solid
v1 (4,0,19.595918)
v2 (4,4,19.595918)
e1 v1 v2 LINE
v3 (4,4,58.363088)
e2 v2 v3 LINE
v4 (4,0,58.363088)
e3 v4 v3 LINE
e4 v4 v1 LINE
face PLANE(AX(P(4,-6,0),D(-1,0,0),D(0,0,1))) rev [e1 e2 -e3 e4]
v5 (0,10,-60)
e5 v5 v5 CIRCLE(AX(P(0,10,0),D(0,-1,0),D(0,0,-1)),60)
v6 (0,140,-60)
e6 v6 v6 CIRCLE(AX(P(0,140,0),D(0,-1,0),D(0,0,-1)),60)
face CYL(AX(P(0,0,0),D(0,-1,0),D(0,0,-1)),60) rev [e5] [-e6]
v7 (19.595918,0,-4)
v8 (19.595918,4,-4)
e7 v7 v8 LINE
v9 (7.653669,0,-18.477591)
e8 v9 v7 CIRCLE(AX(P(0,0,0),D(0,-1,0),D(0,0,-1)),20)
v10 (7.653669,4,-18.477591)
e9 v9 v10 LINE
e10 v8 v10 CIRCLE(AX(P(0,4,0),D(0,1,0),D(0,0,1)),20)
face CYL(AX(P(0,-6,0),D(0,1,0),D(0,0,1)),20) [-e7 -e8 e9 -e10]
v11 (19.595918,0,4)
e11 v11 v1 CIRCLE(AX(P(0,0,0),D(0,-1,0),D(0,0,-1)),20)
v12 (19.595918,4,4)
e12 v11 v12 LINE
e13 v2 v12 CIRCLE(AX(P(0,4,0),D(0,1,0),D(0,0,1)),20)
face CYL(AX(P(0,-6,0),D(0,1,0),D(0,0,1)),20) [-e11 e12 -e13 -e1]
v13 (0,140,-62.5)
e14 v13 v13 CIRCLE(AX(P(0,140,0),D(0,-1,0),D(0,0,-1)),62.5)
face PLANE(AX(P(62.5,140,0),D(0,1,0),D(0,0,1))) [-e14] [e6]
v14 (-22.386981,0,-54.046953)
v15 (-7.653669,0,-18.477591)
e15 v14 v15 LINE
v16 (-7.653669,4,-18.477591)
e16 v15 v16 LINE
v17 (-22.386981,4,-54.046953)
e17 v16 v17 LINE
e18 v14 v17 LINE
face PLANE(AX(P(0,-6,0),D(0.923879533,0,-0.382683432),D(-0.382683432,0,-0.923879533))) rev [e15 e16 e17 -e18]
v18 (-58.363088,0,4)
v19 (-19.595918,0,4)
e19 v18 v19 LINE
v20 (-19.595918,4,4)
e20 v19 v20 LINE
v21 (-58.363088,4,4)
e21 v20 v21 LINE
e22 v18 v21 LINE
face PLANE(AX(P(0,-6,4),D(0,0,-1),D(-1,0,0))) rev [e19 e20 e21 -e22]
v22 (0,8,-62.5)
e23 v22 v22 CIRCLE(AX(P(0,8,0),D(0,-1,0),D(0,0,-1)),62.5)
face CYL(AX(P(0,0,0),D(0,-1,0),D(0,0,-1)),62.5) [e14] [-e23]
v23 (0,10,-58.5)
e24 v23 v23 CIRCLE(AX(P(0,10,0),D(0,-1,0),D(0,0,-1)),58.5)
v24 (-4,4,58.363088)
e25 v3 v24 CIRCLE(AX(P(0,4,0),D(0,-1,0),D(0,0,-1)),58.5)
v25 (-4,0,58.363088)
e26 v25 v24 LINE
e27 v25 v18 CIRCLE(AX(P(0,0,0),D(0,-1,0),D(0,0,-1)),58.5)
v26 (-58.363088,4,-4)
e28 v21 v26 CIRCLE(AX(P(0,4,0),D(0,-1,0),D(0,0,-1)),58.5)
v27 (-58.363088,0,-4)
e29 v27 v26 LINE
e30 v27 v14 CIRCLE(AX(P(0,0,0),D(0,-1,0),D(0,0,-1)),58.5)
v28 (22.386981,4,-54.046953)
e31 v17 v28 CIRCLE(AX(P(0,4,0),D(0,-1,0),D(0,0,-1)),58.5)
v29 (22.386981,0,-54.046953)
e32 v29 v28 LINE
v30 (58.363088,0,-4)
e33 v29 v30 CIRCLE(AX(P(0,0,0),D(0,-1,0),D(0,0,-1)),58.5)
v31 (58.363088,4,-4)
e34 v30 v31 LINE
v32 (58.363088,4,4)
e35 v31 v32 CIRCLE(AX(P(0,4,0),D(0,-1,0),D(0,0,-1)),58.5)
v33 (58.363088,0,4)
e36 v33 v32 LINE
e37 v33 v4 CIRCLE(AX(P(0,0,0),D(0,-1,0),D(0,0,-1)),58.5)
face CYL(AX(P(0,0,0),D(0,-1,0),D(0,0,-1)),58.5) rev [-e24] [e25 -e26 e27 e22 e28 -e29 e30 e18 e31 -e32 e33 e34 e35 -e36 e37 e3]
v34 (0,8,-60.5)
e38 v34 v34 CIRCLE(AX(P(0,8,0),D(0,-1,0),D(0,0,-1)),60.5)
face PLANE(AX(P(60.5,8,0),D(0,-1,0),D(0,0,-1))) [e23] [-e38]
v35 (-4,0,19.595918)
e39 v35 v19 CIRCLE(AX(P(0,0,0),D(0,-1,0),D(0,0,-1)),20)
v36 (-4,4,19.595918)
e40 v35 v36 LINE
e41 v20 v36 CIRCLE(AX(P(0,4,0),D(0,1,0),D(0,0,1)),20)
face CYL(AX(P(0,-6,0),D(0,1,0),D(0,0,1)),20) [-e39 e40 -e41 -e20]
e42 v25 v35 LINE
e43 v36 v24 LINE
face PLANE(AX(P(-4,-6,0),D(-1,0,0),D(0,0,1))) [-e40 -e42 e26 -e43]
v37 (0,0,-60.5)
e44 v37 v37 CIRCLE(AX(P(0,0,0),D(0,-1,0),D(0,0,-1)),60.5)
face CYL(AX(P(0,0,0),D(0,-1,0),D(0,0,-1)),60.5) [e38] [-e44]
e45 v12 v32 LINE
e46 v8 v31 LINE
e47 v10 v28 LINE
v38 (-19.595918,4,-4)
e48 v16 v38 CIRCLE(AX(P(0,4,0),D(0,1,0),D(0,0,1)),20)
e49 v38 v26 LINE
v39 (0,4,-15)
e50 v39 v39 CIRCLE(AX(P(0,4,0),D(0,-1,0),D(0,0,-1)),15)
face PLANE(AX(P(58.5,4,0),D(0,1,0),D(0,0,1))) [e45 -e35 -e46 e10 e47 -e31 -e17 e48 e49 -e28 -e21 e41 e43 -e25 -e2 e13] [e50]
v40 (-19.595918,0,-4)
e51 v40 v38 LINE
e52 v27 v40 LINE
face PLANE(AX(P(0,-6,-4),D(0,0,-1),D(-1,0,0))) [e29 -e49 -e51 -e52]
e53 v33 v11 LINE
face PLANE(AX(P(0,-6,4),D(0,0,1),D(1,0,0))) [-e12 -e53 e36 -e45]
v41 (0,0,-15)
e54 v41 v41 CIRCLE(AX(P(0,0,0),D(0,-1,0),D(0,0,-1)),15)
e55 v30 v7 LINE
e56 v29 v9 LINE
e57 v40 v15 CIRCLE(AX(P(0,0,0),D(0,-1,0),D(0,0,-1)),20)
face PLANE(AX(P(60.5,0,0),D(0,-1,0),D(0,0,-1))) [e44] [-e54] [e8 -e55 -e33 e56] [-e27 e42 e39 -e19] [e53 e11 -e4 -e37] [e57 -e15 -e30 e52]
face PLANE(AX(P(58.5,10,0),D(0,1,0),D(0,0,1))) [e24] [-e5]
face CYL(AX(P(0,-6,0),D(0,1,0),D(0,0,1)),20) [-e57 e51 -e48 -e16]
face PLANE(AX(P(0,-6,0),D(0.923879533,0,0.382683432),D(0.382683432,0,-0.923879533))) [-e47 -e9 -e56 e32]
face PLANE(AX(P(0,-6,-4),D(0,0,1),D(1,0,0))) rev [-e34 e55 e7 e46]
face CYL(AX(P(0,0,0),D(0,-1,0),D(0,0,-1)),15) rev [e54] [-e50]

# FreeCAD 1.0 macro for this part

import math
import FreeCAD as App
import Part
import Sketcher

V = App.Vector
Q = App.Units.Quantity

doc = App.newDocument("Part")
body = doc.addObject("PartDesign::Body", "Body")

sketch1 = doc.addObject("Sketcher::SketchObject", "Sketch")
body.addObject(sketch1)
sketch1.AttachmentSupport = (doc.XY_Plane, [""])
sketch1.MapMode = "FlatFace"
sketch1.addGeometry([
    Part.LineSegment(V(15, 0, 0), V(60.5, 0, 0)),
    Part.LineSegment(V(60.5, 0, 0), V(60.5, 8, 0)),
    Part.LineSegment(V(60.5, 8, 0), V(62.5, 8, 0)),
    Part.LineSegment(V(62.5, 8, 0), V(62.5, 140, 0)),
    Part.LineSegment(V(62.5, 140, 0), V(60, 140, 0)),
    Part.LineSegment(V(60, 140, 0), V(60, 10, 0)),
    Part.LineSegment(V(60, 10, 0), V(58.5, 10, 0)),
    Part.LineSegment(V(58.5, 10, 0), V(58.5, 4, 0)),
    Part.LineSegment(V(58.5, 4, 0), V(15, 4, 0)),
    Part.LineSegment(V(15, 4, 0), V(15, 0, 0)),
], False)
sketch1.addConstraint([
    Sketcher.Constraint("Coincident", 0, 2, 1, 1),
    Sketcher.Constraint("Coincident", 1, 2, 2, 1),
    Sketcher.Constraint("Coincident", 2, 2, 3, 1),
    Sketcher.Constraint("Coincident", 3, 2, 4, 1),
    Sketcher.Constraint("Coincident", 4, 2, 5, 1),
    Sketcher.Constraint("Coincident", 5, 2, 6, 1),
    Sketcher.Constraint("Coincident", 6, 2, 7, 1),
    Sketcher.Constraint("Coincident", 7, 2, 8, 1),
    Sketcher.Constraint("Coincident", 8, 2, 9, 1),
    Sketcher.Constraint("Coincident", 9, 2, 0, 1),
    Sketcher.Constraint("Horizontal", 0),
    Sketcher.Constraint("Vertical", 1),
    Sketcher.Constraint("Horizontal", 2),
    Sketcher.Constraint("Vertical", 3),
    Sketcher.Constraint("Horizontal", 4),
    Sketcher.Constraint("Vertical", 5),
    Sketcher.Constraint("Horizontal", 6),
    Sketcher.Constraint("Vertical", 7),
    Sketcher.Constraint("Horizontal", 8),
    Sketcher.Constraint("Vertical", 9),
    Sketcher.Constraint("PointOnObject", 0, 2, -1),
    Sketcher.Constraint("DistanceX", 2, 1, 2, 2, Q("2 mm")),
    Sketcher.Constraint("DistanceY", 1, 1, 1, 2, Q("8 mm")),
    Sketcher.Constraint("DistanceY", 3, 1, 3, 2, Q("132 mm")),
    Sketcher.Constraint("DistanceY", 5, 2, 5, 1, Q("130 mm")),
    Sketcher.Constraint("DistanceY", 7, 2, 7, 1, Q("6 mm")),
    Sketcher.Constraint("DistanceX", 0, 1, 0, 2, Q("45.5 mm")),
    Sketcher.Constraint("DistanceX", 4, 2, 4, 1, Q("2.5 mm")),
    Sketcher.Constraint("DistanceX", 6, 2, 6, 1, Q("1.5 mm")),
    Sketcher.Constraint("DistanceX", -1, 1, 4, 2, Q("60 mm")),
])
revolution = doc.addObject("PartDesign::Revolution", "Revolution")
body.addObject(revolution)
revolution.Profile = sketch1
revolution.ReferenceAxis = (sketch1, ["V_Axis"])
revolution.Angle = 360

sketch2 = doc.addObject("Sketcher::SketchObject", "Sketch001")
body.addObject(sketch2)
sketch2.AttachmentSupport = (doc.XZ_Plane, [""])
sketch2.MapMode = "FlatFace"
sketch2.AttachmentOffset = App.Placement(V(0, 0, -4), App.Rotation())
sketch2.addGeometry([
    Part.ArcOfCircle(Part.Circle(V(0, 0, 0), V(0, 0, 1), 20), math.radians(12), math.radians(78)),
    Part.LineSegment(V(4, 20, 0), V(4, 58, 0)),
    Part.ArcOfCircle(Part.Circle(V(0, 0, 0), V(0, 0, 1), 59), math.radians(4), math.radians(86)),
    Part.LineSegment(V(58, 4, 0), V(20, 4, 0)),
    Part.LineSegment(V(22, -54, 0), V(8, -18, 0)),
    Part.ArcOfCircle(Part.Circle(V(0, 0, 0), V(0, 0, 1), 20), math.radians(-68), math.radians(-12)),
    Part.LineSegment(V(20, -4, 0), V(58, -4, 0)),
    Part.ArcOfCircle(Part.Circle(V(0, 0, 0), V(0, 0, 1), 59), math.radians(-67), math.radians(-4)),
    Part.ArcOfCircle(Part.Circle(V(0, 0, 0), V(0, 0, 1), 20), math.radians(-168), math.radians(-112)),
    Part.LineSegment(V(-8, -18, 0), V(-22, -54, 0)),
    Part.ArcOfCircle(Part.Circle(V(0, 0, 0), V(0, 0, 1), 59), math.radians(-176), math.radians(-113)),
    Part.LineSegment(V(-58, -4, 0), V(-20, -4, 0)),
    Part.LineSegment(V(-4, 58, 0), V(-4, 20, 0)),
    Part.ArcOfCircle(Part.Circle(V(0, 0, 0), V(0, 0, 1), 20), math.radians(102), math.radians(168)),
    Part.LineSegment(V(-20, 4, 0), V(-58, 4, 0)),
    Part.ArcOfCircle(Part.Circle(V(0, 0, 0), V(0, 0, 1), 59), math.radians(94), math.radians(176)),
], False)
sketch2.addConstraint([
    Sketcher.Constraint("Coincident", 0, 2, 1, 1),
    Sketcher.Constraint("Coincident", 1, 2, 2, 2),
    Sketcher.Constraint("Coincident", 2, 1, 3, 1),
    Sketcher.Constraint("Coincident", 3, 2, 0, 1),
    Sketcher.Constraint("Coincident", 4, 2, 5, 1),
    Sketcher.Constraint("Coincident", 5, 2, 6, 1),
    Sketcher.Constraint("Coincident", 6, 2, 7, 2),
    Sketcher.Constraint("Coincident", 7, 1, 4, 1),
    Sketcher.Constraint("Coincident", 8, 2, 9, 1),
    Sketcher.Constraint("Coincident", 9, 2, 10, 2),
    Sketcher.Constraint("Coincident", 10, 1, 11, 1),
    Sketcher.Constraint("Coincident", 11, 2, 8, 1),
    Sketcher.Constraint("Coincident", 12, 2, 13, 1),
    Sketcher.Constraint("Coincident", 13, 2, 14, 1),
    Sketcher.Constraint("Coincident", 14, 2, 15, 2),
    Sketcher.Constraint("Coincident", 15, 1, 12, 1),
    Sketcher.Constraint("Vertical", 1),
    Sketcher.Constraint("Horizontal", 3),
    Sketcher.Constraint("Horizontal", 6),
    Sketcher.Constraint("Horizontal", 11),
    Sketcher.Constraint("Vertical", 12),
    Sketcher.Constraint("Horizontal", 14),
    Sketcher.Constraint("Coincident", 0, 3, -1, 1),
    Sketcher.Constraint("Coincident", 2, 3, -1, 1),
    Sketcher.Constraint("Coincident", 5, 3, -1, 1),
    Sketcher.Constraint("Coincident", 7, 3, -1, 1),
    Sketcher.Constraint("Coincident", 8, 3, -1, 1),
    Sketcher.Constraint("Coincident", 10, 3, -1, 1),
    Sketcher.Constraint("Coincident", 13, 3, -1, 1),
    Sketcher.Constraint("Coincident", 15, 3, -1, 1),
    Sketcher.Constraint("Equal", 0, 5),
    Sketcher.Constraint("Equal", 2, 7),
    Sketcher.Constraint("Equal", 5, 8),
    Sketcher.Constraint("Equal", 7, 10),
    Sketcher.Constraint("Equal", 8, 13),
    Sketcher.Constraint("Equal", 10, 15),
    Sketcher.Constraint("Horizontal", 4, 2, 8, 2),
    Sketcher.Constraint("Horizontal", 7, 1, 9, 2),
    Sketcher.Constraint("Horizontal", 6, 2, 10, 1),
    Sketcher.Constraint("Horizontal", 0, 2, 12, 2),
    Sketcher.Constraint("Horizontal", 3, 2, 13, 2),
    Sketcher.Constraint("Vertical", 3, 2, 5, 2),
    Sketcher.Constraint("Equal", 14, 1),
    Sketcher.Constraint("Radius", 0, Q("20 mm")),
    Sketcher.Constraint("Radius", 2, Q("58.5 mm")),
    Sketcher.Constraint("DistanceX", -1, 1, 0, 2, Q("4 mm")),
    Sketcher.Constraint("Angle", 4, Q("112.5 deg")),
    Sketcher.Constraint("DistanceX", -1, 1, 4, 2, Q("7.653669 mm")),
])
pocket1 = doc.addObject("PartDesign::Pocket", "Pocket")
body.addObject(pocket1)
pocket1.Profile = sketch2
pocket1.Length = 10
pocket1.Reversed = True

doc.recompute()
